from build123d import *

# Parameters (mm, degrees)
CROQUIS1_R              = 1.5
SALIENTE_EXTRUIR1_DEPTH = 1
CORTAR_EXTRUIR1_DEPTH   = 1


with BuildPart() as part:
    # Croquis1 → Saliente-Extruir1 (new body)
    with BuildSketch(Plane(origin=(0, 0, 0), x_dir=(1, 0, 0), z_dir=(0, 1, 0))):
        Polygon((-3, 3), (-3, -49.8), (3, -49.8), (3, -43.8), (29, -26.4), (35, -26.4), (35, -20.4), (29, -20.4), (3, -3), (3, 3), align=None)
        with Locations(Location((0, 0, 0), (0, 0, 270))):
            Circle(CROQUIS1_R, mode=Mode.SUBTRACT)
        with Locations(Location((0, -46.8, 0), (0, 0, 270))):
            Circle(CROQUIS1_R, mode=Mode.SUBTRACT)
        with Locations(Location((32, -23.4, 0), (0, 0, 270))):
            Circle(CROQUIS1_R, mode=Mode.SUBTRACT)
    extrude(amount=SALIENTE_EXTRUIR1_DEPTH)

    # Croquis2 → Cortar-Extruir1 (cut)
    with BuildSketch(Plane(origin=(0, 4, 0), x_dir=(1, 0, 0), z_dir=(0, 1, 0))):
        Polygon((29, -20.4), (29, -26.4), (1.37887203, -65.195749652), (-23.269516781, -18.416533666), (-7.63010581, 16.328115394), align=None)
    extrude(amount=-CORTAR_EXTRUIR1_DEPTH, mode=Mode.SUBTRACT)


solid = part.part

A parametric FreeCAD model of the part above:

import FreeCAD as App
import Part
import Sketcher


def add_polygon(sketch, points):
    """Adds a closed chain of lines whose ends are joined by coincident constraints."""
    first, n = sketch.GeometryCount, len(points)
    for a, b in zip(points, points[1:] + points[:1]):
        sketch.addGeometry(Part.LineSegment(App.Vector(*a, 0), App.Vector(*b, 0)), False)
    for i in range(n):
        sketch.addConstraint(Sketcher.Constraint("Coincident", first + i, 2, first + (i + 1) % n, 1))

doc = App.newDocument("Part")
body = doc.addObject("PartDesign::Body", "Body")

# Sketch on XZ plane
sketch1 = body.newObject("Sketcher::SketchObject", "Sketch")
sketch1.AttachmentSupport = (doc.getObject("XZ_Plane"), [""])
sketch1.MapMode = "FlatFace"
add_polygon(sketch1, [(-3, -3), (-3, 49.8), (3, 49.8), (3, 43.8), (29, 26.4), (35, 26.4), (35, 20.4), (29, 20.4), (3, 3), (3, -3)])  # lines 0-9
sketch1.addGeometry(Part.Circle(App.Vector(0, 46.8, 0), App.Vector(0, 0, 1), 1.5), False)  # 10
sketch1.addGeometry(Part.Circle(App.Vector(32, 23.4, 0), App.Vector(0, 0, 1), 1.5), False)  # 11
sketch1.addGeometry(Part.Circle(App.Vector(0, 0, 0), App.Vector(0, 0, 1), 1.5), False)  # 12
sketch1.addConstraint(Sketcher.Constraint("Vertical", 0))
sketch1.addConstraint(Sketcher.Constraint("Horizontal", 1))
sketch1.addConstraint(Sketcher.Constraint("Vertical", 2))
sketch1.addConstraint(Sketcher.Constraint("Horizontal", 4))
sketch1.addConstraint(Sketcher.Constraint("Vertical", 5))
sketch1.addConstraint(Sketcher.Constraint("Horizontal", 6))
sketch1.addConstraint(Sketcher.Constraint("Vertical", 8))
sketch1.addConstraint(Sketcher.Constraint("Horizontal", 9))
sketch1.addConstraint(Sketcher.Constraint("Coincident", 12, 3, -1, 1))
sketch1.addConstraint(Sketcher.Constraint("Equal", 10, 11))
sketch1.addConstraint(Sketcher.Constraint("Equal", 11, 12))
sketch1.addConstraint(Sketcher.Constraint("Symmetric", 7, 2, 9, 2, -1, 1))
sketch1.addConstraint(Sketcher.Constraint("PointOnObject", 10, 3, -2))
sketch1.addConstraint(Sketcher.Constraint("Vertical", 3, 2, 6, 2))
sketch1.addConstraint(Sketcher.Constraint("Vertical", 2, 2, 7, 2))
sketch1.addConstraint(Sketcher.Constraint("Equal", 1, 4))
sketch1.addConstraint(Sketcher.Constraint("Equal", 9, 2))
sketch1.addConstraint(Sketcher.Constraint("Equal", 2, 5))
sketch1.addConstraint(Sketcher.Constraint("Equal", 5, 8))
sketch1.addConstraint(Sketcher.Constraint("Equal", 3, 7))
sketch1.addConstraint(Sketcher.Constraint("Diameter", 10, 3.0))
sketch1.addConstraint(Sketcher.Constraint("DistanceX", 1, 1, 1, 2, 6.0))
sketch1.addConstraint(Sketcher.Constraint("DistanceY", 0, 1, 0, 2, 52.8))
sketch1.addConstraint(Sketcher.Constraint("DistanceX", -1, 1, 11, 3, 32.0))
sketch1.addConstraint(Sketcher.Constraint("DistanceX", -1, 1, 3, 2, 29.0))
sketch1.addConstraint(Sketcher.Constraint("DistanceY", 10, 3, 0, 2, 3.0))
sketch1.addConstraint(Sketcher.Constraint("DistanceY", 11, 3, 3, 2, 3.0))
pad1 = body.newObject("PartDesign::Pad", "Pad")
pad1.Profile = sketch1
pad1.Length = 1
pad1.Reversed = True

# Sketch on XZ plane
sketch2 = body.newObject("Sketcher::SketchObject", "Sketch001")
sketch2.AttachmentSupport = (doc.getObject("XZ_Plane"), [""])
sketch2.MapMode = "FlatFace"
sketch2.AttachmentOffset = App.Placement(App.Vector(0, 0, -4), App.Rotation())
add_polygon(sketch2, [(29, 26), (29, 20), (-8, -16), (-23, 18), (1, 65)])  # lines 0-4
sketch2.addConstraint(Sketcher.Constraint("Vertical", 0))
sketch2.addConstraint(Sketcher.Constraint("DistanceY", 0, 2, 0, 1, 6.0))
sketch2.addConstraint(Sketcher.Constraint("DistanceX", -1, 1, 0, 2, 29.0))
sketch2.addConstraint(Sketcher.Constraint("DistanceY", -1, 1, 0, 2, 20.4))
sketch2.addConstraint(Sketcher.Constraint("Distance", 1, 51.872142))
sketch2.addConstraint(Sketcher.Constraint("Distance", 4, 47.623911))
sketch2.addConstraint(Sketcher.Constraint("DistanceY", -1, 1, 3, 2, 65.19575))
sketch2.addConstraint(Sketcher.Constraint("DistanceX", 2, 2, 1, 2, 15.639411))
sketch2.addConstraint(Sketcher.Constraint("DistanceY", 1, 2, 2, 2, 34.744649))
sketch2.addConstraint(Sketcher.Constraint("DistanceX", 2, 2, 3, 2, 24.648389))
pocket1 = body.newObject("PartDesign::Pocket", "Pocket")
pocket1.Profile = sketch2
pocket1.Length = 1
pocket1.Reversed = True

doc.recompute()
